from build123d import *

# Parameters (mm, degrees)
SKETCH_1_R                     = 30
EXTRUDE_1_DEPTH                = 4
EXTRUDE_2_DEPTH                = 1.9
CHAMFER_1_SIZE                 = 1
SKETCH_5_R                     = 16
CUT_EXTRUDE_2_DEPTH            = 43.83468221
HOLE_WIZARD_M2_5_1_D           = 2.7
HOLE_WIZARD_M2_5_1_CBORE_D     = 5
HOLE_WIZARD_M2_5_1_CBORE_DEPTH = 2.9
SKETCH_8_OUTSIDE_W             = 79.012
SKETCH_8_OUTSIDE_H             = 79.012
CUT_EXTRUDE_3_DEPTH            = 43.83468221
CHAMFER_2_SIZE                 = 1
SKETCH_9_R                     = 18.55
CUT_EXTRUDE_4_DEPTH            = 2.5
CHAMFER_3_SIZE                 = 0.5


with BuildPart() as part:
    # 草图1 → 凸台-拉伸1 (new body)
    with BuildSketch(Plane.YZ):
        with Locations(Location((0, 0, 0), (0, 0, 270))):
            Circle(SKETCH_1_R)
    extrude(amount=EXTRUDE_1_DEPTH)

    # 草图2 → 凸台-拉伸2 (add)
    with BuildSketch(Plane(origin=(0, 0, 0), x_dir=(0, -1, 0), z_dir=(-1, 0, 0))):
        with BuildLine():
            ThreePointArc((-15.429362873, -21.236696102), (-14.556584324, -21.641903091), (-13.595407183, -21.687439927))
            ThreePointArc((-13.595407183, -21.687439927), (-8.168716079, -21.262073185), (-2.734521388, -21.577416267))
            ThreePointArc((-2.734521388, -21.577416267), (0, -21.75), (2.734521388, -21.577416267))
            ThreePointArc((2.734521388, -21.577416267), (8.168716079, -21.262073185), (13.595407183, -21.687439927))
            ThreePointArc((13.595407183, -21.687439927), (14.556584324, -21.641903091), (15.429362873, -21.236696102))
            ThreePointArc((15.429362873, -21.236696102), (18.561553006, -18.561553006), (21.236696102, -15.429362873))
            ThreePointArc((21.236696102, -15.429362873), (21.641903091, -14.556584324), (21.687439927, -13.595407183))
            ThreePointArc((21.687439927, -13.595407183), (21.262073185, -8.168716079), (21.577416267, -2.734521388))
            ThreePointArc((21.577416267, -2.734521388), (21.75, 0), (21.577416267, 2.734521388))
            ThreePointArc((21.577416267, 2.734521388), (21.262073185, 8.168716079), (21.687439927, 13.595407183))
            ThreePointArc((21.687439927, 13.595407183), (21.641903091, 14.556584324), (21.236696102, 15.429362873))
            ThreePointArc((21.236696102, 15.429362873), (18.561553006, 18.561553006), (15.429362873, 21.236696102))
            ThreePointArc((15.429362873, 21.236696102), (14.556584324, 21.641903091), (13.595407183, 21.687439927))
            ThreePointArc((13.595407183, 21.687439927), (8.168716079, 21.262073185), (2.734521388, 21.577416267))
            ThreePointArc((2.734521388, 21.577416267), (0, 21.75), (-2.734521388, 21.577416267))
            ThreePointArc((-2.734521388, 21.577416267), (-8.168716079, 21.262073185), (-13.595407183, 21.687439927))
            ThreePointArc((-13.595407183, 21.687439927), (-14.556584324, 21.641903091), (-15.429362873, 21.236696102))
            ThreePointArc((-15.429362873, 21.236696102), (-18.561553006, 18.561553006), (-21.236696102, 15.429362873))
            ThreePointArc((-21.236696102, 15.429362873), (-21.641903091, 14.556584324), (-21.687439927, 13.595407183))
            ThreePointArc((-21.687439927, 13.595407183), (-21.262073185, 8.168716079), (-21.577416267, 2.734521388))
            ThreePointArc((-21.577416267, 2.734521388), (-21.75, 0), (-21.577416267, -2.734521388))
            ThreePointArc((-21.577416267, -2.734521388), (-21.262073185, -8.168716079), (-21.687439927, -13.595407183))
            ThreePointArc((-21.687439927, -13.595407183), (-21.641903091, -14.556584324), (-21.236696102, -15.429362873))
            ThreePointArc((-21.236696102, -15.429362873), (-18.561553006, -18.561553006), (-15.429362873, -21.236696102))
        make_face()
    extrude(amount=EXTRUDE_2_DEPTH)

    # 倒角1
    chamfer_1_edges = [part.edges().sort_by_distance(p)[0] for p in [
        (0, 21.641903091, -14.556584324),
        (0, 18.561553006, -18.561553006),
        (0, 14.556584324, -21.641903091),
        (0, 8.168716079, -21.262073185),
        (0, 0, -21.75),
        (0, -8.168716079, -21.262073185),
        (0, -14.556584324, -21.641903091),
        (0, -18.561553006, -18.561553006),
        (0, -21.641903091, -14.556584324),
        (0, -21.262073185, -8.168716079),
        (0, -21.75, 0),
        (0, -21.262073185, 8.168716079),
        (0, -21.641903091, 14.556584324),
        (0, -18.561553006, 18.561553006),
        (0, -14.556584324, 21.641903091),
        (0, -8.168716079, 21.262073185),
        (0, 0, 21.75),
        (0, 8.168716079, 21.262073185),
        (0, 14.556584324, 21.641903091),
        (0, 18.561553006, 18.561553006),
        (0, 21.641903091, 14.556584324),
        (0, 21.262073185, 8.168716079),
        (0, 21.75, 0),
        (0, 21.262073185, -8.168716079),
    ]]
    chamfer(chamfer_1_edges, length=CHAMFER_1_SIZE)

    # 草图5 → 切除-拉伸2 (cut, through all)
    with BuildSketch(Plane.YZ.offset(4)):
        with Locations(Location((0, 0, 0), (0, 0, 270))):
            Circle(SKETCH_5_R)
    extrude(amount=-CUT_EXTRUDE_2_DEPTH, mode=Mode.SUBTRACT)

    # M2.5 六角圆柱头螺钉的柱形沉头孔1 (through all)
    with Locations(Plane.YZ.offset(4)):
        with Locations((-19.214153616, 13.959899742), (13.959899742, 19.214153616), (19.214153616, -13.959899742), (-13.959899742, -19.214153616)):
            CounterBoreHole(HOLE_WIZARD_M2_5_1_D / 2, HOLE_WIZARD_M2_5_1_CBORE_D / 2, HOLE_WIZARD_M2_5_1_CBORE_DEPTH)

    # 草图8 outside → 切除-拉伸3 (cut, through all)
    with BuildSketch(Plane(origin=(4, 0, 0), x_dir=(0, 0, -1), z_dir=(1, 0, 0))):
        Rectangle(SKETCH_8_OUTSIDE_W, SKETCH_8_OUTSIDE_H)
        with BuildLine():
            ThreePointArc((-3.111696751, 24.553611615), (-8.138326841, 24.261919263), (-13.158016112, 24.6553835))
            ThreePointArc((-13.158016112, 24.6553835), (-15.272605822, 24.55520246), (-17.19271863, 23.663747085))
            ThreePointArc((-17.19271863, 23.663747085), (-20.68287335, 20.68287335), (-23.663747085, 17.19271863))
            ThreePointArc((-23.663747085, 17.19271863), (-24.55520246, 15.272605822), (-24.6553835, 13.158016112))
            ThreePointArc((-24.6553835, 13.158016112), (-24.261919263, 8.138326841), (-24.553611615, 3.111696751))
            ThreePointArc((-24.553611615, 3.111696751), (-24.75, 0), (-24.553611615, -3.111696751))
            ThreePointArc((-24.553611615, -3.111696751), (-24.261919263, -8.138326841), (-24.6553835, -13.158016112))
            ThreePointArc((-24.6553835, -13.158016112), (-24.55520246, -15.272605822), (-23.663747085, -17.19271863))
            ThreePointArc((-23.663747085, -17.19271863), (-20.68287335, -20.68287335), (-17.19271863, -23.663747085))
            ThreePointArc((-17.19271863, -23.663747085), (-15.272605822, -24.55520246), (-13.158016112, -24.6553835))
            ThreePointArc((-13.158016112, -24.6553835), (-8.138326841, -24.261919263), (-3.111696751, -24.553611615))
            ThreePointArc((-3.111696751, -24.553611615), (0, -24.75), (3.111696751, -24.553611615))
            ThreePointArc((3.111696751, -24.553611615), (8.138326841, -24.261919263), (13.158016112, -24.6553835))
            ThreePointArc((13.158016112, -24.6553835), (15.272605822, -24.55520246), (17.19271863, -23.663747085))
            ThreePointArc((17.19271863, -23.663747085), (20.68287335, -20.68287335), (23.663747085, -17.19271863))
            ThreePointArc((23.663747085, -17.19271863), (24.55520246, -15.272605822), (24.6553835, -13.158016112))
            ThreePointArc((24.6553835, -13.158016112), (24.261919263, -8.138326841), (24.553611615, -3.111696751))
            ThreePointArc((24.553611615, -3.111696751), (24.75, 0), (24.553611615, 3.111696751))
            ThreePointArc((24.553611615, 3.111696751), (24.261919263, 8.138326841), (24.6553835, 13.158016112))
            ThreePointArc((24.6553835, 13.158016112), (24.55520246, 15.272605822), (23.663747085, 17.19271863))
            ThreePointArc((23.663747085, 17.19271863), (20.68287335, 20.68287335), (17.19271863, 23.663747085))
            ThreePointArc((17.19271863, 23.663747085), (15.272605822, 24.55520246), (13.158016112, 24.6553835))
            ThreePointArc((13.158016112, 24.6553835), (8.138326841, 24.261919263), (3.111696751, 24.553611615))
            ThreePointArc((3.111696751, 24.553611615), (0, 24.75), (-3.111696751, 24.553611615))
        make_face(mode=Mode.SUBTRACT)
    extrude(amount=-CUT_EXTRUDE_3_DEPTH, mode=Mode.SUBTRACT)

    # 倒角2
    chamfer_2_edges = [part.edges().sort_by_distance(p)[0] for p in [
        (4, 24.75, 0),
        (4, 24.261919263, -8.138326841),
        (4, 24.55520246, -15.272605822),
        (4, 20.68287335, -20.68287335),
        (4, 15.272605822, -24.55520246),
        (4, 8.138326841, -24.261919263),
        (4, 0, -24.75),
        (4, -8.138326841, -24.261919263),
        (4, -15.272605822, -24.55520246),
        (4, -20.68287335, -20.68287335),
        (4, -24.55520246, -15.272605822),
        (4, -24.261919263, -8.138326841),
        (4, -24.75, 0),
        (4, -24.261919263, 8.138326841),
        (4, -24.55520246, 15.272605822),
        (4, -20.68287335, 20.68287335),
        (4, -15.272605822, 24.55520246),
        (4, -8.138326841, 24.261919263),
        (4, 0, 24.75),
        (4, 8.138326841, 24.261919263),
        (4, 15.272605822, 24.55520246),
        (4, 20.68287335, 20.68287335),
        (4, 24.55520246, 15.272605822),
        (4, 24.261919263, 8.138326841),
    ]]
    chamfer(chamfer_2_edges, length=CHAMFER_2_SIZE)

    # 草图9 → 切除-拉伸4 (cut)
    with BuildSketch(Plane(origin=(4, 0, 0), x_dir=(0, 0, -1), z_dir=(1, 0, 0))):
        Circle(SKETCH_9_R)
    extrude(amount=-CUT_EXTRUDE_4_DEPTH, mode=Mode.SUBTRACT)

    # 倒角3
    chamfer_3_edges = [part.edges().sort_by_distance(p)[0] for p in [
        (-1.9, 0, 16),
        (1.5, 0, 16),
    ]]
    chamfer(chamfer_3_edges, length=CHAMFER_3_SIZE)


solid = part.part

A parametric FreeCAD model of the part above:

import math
import FreeCAD as App
import Part
import Sketcher
Q = App.Units.Quantity


def edges_at(feature, points):
    """Names of the edges that pass closest to the given points."""
    edges = feature.Shape.Edges
    near = lambda p: min(range(len(edges)), key=lambda i: edges[i].distToShape(Part.Vertex(*p))[0])
    return sorted({f"Edge{near(p) + 1}" for p in points})


def add_polygon(sketch, points):
    """Adds a closed chain of lines whose ends are joined by coincident constraints."""
    first, n = sketch.GeometryCount, len(points)
    for a, b in zip(points, points[1:] + points[:1]):
        sketch.addGeometry(Part.LineSegment(App.Vector(*a, 0), App.Vector(*b, 0)), False)
    for i in range(n):
        sketch.addConstraint(Sketcher.Constraint("Coincident", first + i, 2, first + (i + 1) % n, 1))

doc = App.newDocument("Part")
body = doc.addObject("PartDesign::Body", "Body")

# Sketch on YZ plane
sketch1 = body.newObject("Sketcher::SketchObject", "Sketch")
sketch1.AttachmentSupport = (doc.getObject("YZ_Plane"), [""])
sketch1.MapMode = "FlatFace"
sketch1.addGeometry(Part.Circle(App.Vector(0, 0, 0), App.Vector(0, 0, 1), 30), False)
sketch1.addConstraint([
    Sketcher.Constraint("Coincident", 0, 3, -1, 1),
    Sketcher.Constraint("Diameter", 0, Q("60 mm")),
])
pad1 = body.newObject("PartDesign::Pad", "Pad")
pad1.Profile = sketch1
pad1.Length = 4

# Sketch on YZ plane
sketch2 = body.newObject("Sketcher::SketchObject", "Sketch001")
sketch2.AttachmentSupport = (doc.getObject("YZ_Plane"), [""])
sketch2.MapMode = "FlatFace"
sketch2.addGeometry([
    Part.ArcOfCircle(Part.Circle(App.Vector(13.9599, -19.214154, 0), App.Vector(0, 0, 1), 2.5), math.radians(-98.383436), math.radians(-54)),  # 0
    Part.ArcOfCircle(Part.Circle(App.Vector(7.763526, -61.260021, 0), App.Vector(0, 0, 1), 40), math.radians(81.616564), math.radians(97.222633)),  # 1
    Part.ArcOfCircle(Part.Circle(App.Vector(0, 0, 0), App.Vector(0, 0, 1), 21.75), math.radians(-97.222633), math.radians(-82.777367)),  # 2
    Part.ArcOfCircle(Part.Circle(App.Vector(-7.763526, -61.260021, 0), App.Vector(0, 0, 1), 40), math.radians(82.777367), math.radians(98.383436)),  # 3
    Part.ArcOfCircle(Part.Circle(App.Vector(-13.9599, -19.214154, 0), App.Vector(0, 0, 1), 2.5), math.radians(-126), math.radians(-81.616564)),  # 4
    Part.ArcOfCircle(Part.Circle(App.Vector(0, 0, 0), App.Vector(0, 0, 1), 26.25), math.radians(-144), math.radians(-126)),  # 5
    Part.ArcOfCircle(Part.Circle(App.Vector(-19.214154, -13.9599, 0), App.Vector(0, 0, 1), 2.5), math.radians(171.616564), math.radians(216)),  # 6
    Part.ArcOfCircle(Part.Circle(App.Vector(-61.260021, -7.763526, 0), App.Vector(0, 0, 1), 40), math.radians(-8.383436), math.radians(7.222633)),  # 7
    Part.ArcOfCircle(Part.Circle(App.Vector(0, 0, 0), App.Vector(0, 0, 1), 21.75), math.radians(172.777367), math.radians(187.222633)),  # 8
    Part.ArcOfCircle(Part.Circle(App.Vector(-61.260021, 7.763526, 0), App.Vector(0, 0, 1), 40), math.radians(-7.222633), math.radians(8.383436)),  # 9
    Part.ArcOfCircle(Part.Circle(App.Vector(-19.214154, 13.9599, 0), App.Vector(0, 0, 1), 2.5), math.radians(144), math.radians(188.383436)),  # 10
    Part.ArcOfCircle(Part.Circle(App.Vector(0, 0, 0), App.Vector(0, 0, 1), 26.25), math.radians(126), math.radians(144)),  # 11
    Part.ArcOfCircle(Part.Circle(App.Vector(-13.9599, 19.214154, 0), App.Vector(0, 0, 1), 2.5), math.radians(81.616564), math.radians(126)),  # 12
    Part.ArcOfCircle(Part.Circle(App.Vector(-7.763526, 61.260021, 0), App.Vector(0, 0, 1), 40), math.radians(-98.383436), math.radians(-82.777367)),  # 13
    Part.ArcOfCircle(Part.Circle(App.Vector(0, 0, 0), App.Vector(0, 0, 1), 21.75), math.radians(82.777367), math.radians(97.222633)),  # 14
    Part.ArcOfCircle(Part.Circle(App.Vector(7.763526, 61.260021, 0), App.Vector(0, 0, 1), 40), math.radians(-97.222633), math.radians(-81.616564)),  # 15
    Part.ArcOfCircle(Part.Circle(App.Vector(13.9599, 19.214154, 0), App.Vector(0, 0, 1), 2.5), math.radians(54), math.radians(98.383436)),  # 16
    Part.ArcOfCircle(Part.Circle(App.Vector(0, 0, 0), App.Vector(0, 0, 1), 26.25), math.radians(36), math.radians(54)),  # 17
    Part.ArcOfCircle(Part.Circle(App.Vector(19.214154, 13.9599, 0), App.Vector(0, 0, 1), 2.5), math.radians(-8.383436), math.radians(36)),  # 18
    Part.ArcOfCircle(Part.Circle(App.Vector(61.260021, 7.763526, 0), App.Vector(0, 0, 1), 40), math.radians(171.616564), math.radians(187.222633)),  # 19
    Part.ArcOfCircle(Part.Circle(App.Vector(0, 0, 0), App.Vector(0, 0, 1), 21.75), math.radians(-7.222633), math.radians(7.222633)),  # 20
    Part.ArcOfCircle(Part.Circle(App.Vector(61.260021, -7.763526, 0), App.Vector(0, 0, 1), 40), math.radians(172.777367), math.radians(188.383436)),  # 21
    Part.ArcOfCircle(Part.Circle(App.Vector(19.214154, -13.9599, 0), App.Vector(0, 0, 1), 2.5), math.radians(-36), math.radians(8.383436)),  # 22
    Part.ArcOfCircle(Part.Circle(App.Vector(0, 0, 0), App.Vector(0, 0, 1), 26.25), math.radians(-54), math.radians(-36)),  # 23
], False)
sketch2.addConstraint([
    Sketcher.Constraint("Tangent", 0, 1, 1, 1),
    Sketcher.Constraint("Tangent", 1, 2, 2, 2),
    Sketcher.Constraint("Tangent", 2, 1, 3, 1),
    Sketcher.Constraint("Tangent", 3, 2, 4, 2),
    Sketcher.Constraint("Tangent", 4, 1, 5, 2),
    Sketcher.Constraint("Tangent", 5, 1, 6, 2),
    Sketcher.Constraint("Tangent", 6, 1, 7, 1),
    Sketcher.Constraint("Tangent", 7, 2, 8, 2),
    Sketcher.Constraint("Tangent", 8, 1, 9, 1),
    Sketcher.Constraint("Tangent", 9, 2, 10, 2),
    Sketcher.Constraint("Tangent", 10, 1, 11, 2),
    Sketcher.Constraint("Tangent", 11, 1, 12, 2),
    Sketcher.Constraint("Tangent", 12, 1, 13, 1),
    Sketcher.Constraint("Tangent", 13, 2, 14, 2),
    Sketcher.Constraint("Tangent", 14, 1, 15, 1),
    Sketcher.Constraint("Tangent", 15, 2, 16, 2),
    Sketcher.Constraint("Tangent", 16, 1, 17, 2),
    Sketcher.Constraint("Tangent", 17, 1, 18, 2),
    Sketcher.Constraint("Tangent", 18, 1, 19, 1),
    Sketcher.Constraint("Tangent", 19, 2, 20, 2),
    Sketcher.Constraint("Tangent", 20, 1, 21, 1),
    Sketcher.Constraint("Tangent", 21, 2, 22, 2),
    Sketcher.Constraint("Tangent", 22, 1, 23, 2),
    Sketcher.Constraint("Tangent", 23, 1, 0, 2),
    Sketcher.Constraint("Coincident", 2, 3, -1, 1),
    Sketcher.Constraint("Coincident", 5, 3, -1, 1),
    Sketcher.Constraint("Coincident", 8, 3, -1, 1),
    Sketcher.Constraint("Coincident", 11, 3, -1, 1),
    Sketcher.Constraint("Coincident", 14, 3, -1, 1),
    Sketcher.Constraint("Coincident", 17, 3, -1, 1),
    Sketcher.Constraint("Coincident", 20, 3, -1, 1),
    Sketcher.Constraint("Coincident", 23, 3, -1, 1),
    Sketcher.Constraint("Equal", 1, 3),
    Sketcher.Constraint("Equal", 0, 4),
    Sketcher.Constraint("Equal", 4, 6),
    Sketcher.Constraint("Equal", 3, 7),
    Sketcher.Constraint("Equal", 2, 8),
    Sketcher.Constraint("Equal", 7, 9),
    Sketcher.Constraint("Equal", 6, 10),
    Sketcher.Constraint("Equal", 5, 11),
    Sketcher.Constraint("Equal", 10, 12),
    Sketcher.Constraint("Equal", 9, 13),
    Sketcher.Constraint("Equal", 8, 14),
    Sketcher.Constraint("Equal", 13, 15),
    Sketcher.Constraint("Equal", 12, 16),
    Sketcher.Constraint("Equal", 11, 17),
    Sketcher.Constraint("Equal", 16, 18),
    Sketcher.Constraint("Equal", 15, 19),
    Sketcher.Constraint("Equal", 14, 20),
    Sketcher.Constraint("Equal", 19, 21),
    Sketcher.Constraint("Equal", 18, 22),
    Sketcher.Constraint("Equal", 17, 23),
    Sketcher.Constraint("Horizontal", 1, 3, 3, 3),
    Sketcher.Constraint("Horizontal", 13, 3, 15, 3),
    Sketcher.Constraint("Horizontal", 10, 3, 18, 3),
    Sketcher.Constraint("Horizontal", 7, 3, 21, 3),
    Sketcher.Constraint("Vertical", 7, 3, 9, 3),
    Sketcher.Constraint("Vertical", 4, 3, 12, 3),
    Sketcher.Constraint("Radius", 1, Q("40 mm")),
    Sketcher.Constraint("Radius", 0, Q("2.5 mm")),
    Sketcher.Constraint("Radius", 2, Q("21.75 mm")),
    Sketcher.Constraint("Radius", 5, Q("26.25 mm")),
    Sketcher.Constraint("DistanceX", -1, 1, 0, 3, Q("13.9599 mm")),
    Sketcher.Constraint("DistanceY", 6, 3, -1, 1, Q("13.9599 mm")),
])
pad2 = body.newObject("PartDesign::Pad", "Pad001")
pad2.Profile = sketch2
pad2.Length = 1.9
pad2.Reversed = True
doc.recompute()

chamfer = body.newObject("PartDesign::Chamfer", "Chamfer")
chamfer.Base = (pad2, edges_at(pad2, [
    (0, 21.642, -14.557),
    (0, 18.562, -18.562),
    (0, 14.557, -21.642),
    (0, 8.169, -21.262),
    (0, 0, -21.75),
    (0, -8.169, -21.262),
    (0, -14.557, -21.642),
    (0, -18.562, -18.562),
    (0, -21.642, -14.557),
    (0, -21.262, -8.169),
    (0, -21.75, 0),
    (0, -21.262, 8.169),
    (0, -21.642, 14.557),
    (0, -18.562, 18.562),
    (0, -14.557, 21.642),
    (0, -8.169, 21.262),
    (0, 0, 21.75),
    (0, 8.169, 21.262),
    (0, 14.557, 21.642),
    (0, 18.562, 18.562),
    (0, 21.642, 14.557),
    (0, 21.262, 8.169),
    (0, 21.75, 0),
    (0, 21.262, -8.169),
]))
chamfer.Size = 1

# Sketch on YZ plane
sketch3 = body.newObject("Sketcher::SketchObject", "Sketch002")
sketch3.AttachmentSupport = (doc.getObject("YZ_Plane"), [""])
sketch3.MapMode = "FlatFace"
sketch3.AttachmentOffset = App.Placement(App.Vector(0, 0, 4), App.Rotation())
sketch3.addGeometry(Part.Circle(App.Vector(0, 0, 0), App.Vector(0, 0, 1), 16), False)
sketch3.addConstraint([
    Sketcher.Constraint("Coincident", 0, 3, -1, 1),
    Sketcher.Constraint("Diameter", 0, Q("32 mm")),
])
pocket1 = body.newObject("PartDesign::Pocket", "Pocket")
pocket1.Profile = sketch3
pocket1.Type = "ThroughAll"

# Sketch on YZ plane
sketch4 = body.newObject("Sketcher::SketchObject", "Sketch003")
sketch4.AttachmentSupport = (doc.getObject("YZ_Plane"), [""])
sketch4.MapMode = "FlatFace"
sketch4.AttachmentOffset = App.Placement(App.Vector(0, 0, 4), App.Rotation())
sketch4.addGeometry([
    Part.Circle(App.Vector(-19.214154, 13.9599, 0), App.Vector(0, 0, 1), 1.35),
    Part.Circle(App.Vector(13.9599, 19.214154, 0), App.Vector(0, 0, 1), 1.35),
    Part.Circle(App.Vector(19.214154, -13.9599, 0), App.Vector(0, 0, 1), 1.35),
    Part.Circle(App.Vector(-13.9599, -19.214154, 0), App.Vector(0, 0, 1), 1.35),
], False)
sketch4.addConstraint([
    Sketcher.Constraint("Equal", 0, 1),
    Sketcher.Constraint("Equal", 1, 2),
    Sketcher.Constraint("Equal", 2, 3),
    Sketcher.Constraint("Symmetric", 0, 3, 2, 3, -1, 1),
    Sketcher.Constraint("Symmetric", 1, 3, 3, 3, -1, 1),
    Sketcher.Constraint("Diameter", 0, Q("2.7 mm")),
    Sketcher.Constraint("DistanceY", -1, 1, 0, 3, Q("13.9599 mm")),
    Sketcher.Constraint("DistanceX", -1, 1, 1, 3, Q("13.9599 mm")),
    Sketcher.Constraint("DistanceX", 0, 3, -1, 1, Q("19.214154 mm")),
    Sketcher.Constraint("DistanceY", -1, 1, 1, 3, Q("19.214154 mm")),
])
doc.recompute()
hole = body.newObject("PartDesign::Hole", "Hole")
hole.Profile = sketch4
hole.ThreadType = "None"
hole.Diameter = 2.7
hole.DepthType = "ThroughAll"
hole.HoleCutType = "Counterbore"
hole.HoleCutDiameter = 5
hole.HoleCutDepth = 2.9

# Sketch on YZ plane
sketch5 = body.newObject("Sketcher::SketchObject", "Sketch004")
sketch5.AttachmentSupport = (doc.getObject("YZ_Plane"), [""])
sketch5.MapMode = "FlatFace"
sketch5.AttachmentOffset = App.Placement(App.Vector(0, 0, 4), App.Rotation())
add_polygon(sketch5, [(39.506, 39.506), (-39.506, 39.506), (-39.506, -39.506), (39.506, -39.506)])  # lines 0-3
sketch5.addGeometry(Part.ArcOfCircle(Part.Circle(App.Vector(61.260021, 7.763526, 0), App.Vector(0, 0, 1), 37), math.radians(171.616564), math.radians(187.222633)), False)  # 4
sketch5.addGeometry(Part.ArcOfCircle(Part.Circle(App.Vector(0, 0, 0), App.Vector(0, 0, 1), 24.75), math.radians(-7.222633), math.radians(7.222633)), False)  # 5
sketch5.addGeometry(Part.ArcOfCircle(Part.Circle(App.Vector(61.260021, -7.763526, 0), App.Vector(0, 0, 1), 37), math.radians(172.777367), math.radians(188.383436)), False)  # 6
sketch5.addGeometry(Part.ArcOfCircle(Part.Circle(App.Vector(19.214154, -13.9599, 0), App.Vector(0, 0, 1), 5.5), math.radians(-36), math.radians(8.383436)), False)  # 7
sketch5.addGeometry(Part.ArcOfCircle(Part.Circle(App.Vector(0, 0, 0), App.Vector(0, 0, 1), 29.25), math.radians(-54), math.radians(-36)), False)  # 8
sketch5.addGeometry(Part.ArcOfCircle(Part.Circle(App.Vector(13.9599, -19.214154, 0), App.Vector(0, 0, 1), 5.5), math.radians(-98.383436), math.radians(-54)), False)  # 9
sketch5.addGeometry(Part.ArcOfCircle(Part.Circle(App.Vector(7.763526, -61.260021, 0), App.Vector(0, 0, 1), 37), math.radians(81.616564), math.radians(97.222633)), False)  # 10
sketch5.addGeometry(Part.ArcOfCircle(Part.Circle(App.Vector(0, 0, 0), App.Vector(0, 0, 1), 24.75), math.radians(-97.222633), math.radians(-82.777367)), False)  # 11
sketch5.addGeometry(Part.ArcOfCircle(Part.Circle(App.Vector(-7.763526, -61.260021, 0), App.Vector(0, 0, 1), 37), math.radians(82.777367), math.radians(98.383436)), False)  # 12
sketch5.addGeometry(Part.ArcOfCircle(Part.Circle(App.Vector(-13.9599, -19.214154, 0), App.Vector(0, 0, 1), 5.5), math.radians(-126), math.radians(-81.616564)), False)  # 13
sketch5.addGeometry(Part.ArcOfCircle(Part.Circle(App.Vector(0, 0, 0), App.Vector(0, 0, 1), 29.25), math.radians(-144), math.radians(-126)), False)  # 14
sketch5.addGeometry(Part.ArcOfCircle(Part.Circle(App.Vector(-19.214154, -13.9599, 0), App.Vector(0, 0, 1), 5.5), math.radians(171.616564), math.radians(216)), False)  # 15
sketch5.addGeometry(Part.ArcOfCircle(Part.Circle(App.Vector(-61.260021, -7.763526, 0), App.Vector(0, 0, 1), 37), math.radians(-8.383436), math.radians(7.222633)), False)  # 16
sketch5.addGeometry(Part.ArcOfCircle(Part.Circle(App.Vector(0, 0, 0), App.Vector(0, 0, 1), 24.75), math.radians(172.777367), math.radians(187.222633)), False)  # 17
sketch5.addGeometry(Part.ArcOfCircle(Part.Circle(App.Vector(-61.260021, 7.763526, 0), App.Vector(0, 0, 1), 37), math.radians(-7.222633), math.radians(8.383436)), False)  # 18
sketch5.addGeometry(Part.ArcOfCircle(Part.Circle(App.Vector(-19.214154, 13.9599, 0), App.Vector(0, 0, 1), 5.5), math.radians(144), math.radians(188.383436)), False)  # 19
sketch5.addGeometry(Part.ArcOfCircle(Part.Circle(App.Vector(0, 0, 0), App.Vector(0, 0, 1), 29.25), math.radians(126), math.radians(144)), False)  # 20
sketch5.addGeometry(Part.ArcOfCircle(Part.Circle(App.Vector(-13.9599, 19.214154, 0), App.Vector(0, 0, 1), 5.5), math.radians(81.616564), math.radians(126)), False)  # 21
sketch5.addGeometry(Part.ArcOfCircle(Part.Circle(App.Vector(-7.763526, 61.260021, 0), App.Vector(0, 0, 1), 37), math.radians(-98.383436), math.radians(-82.777367)), False)  # 22
sketch5.addGeometry(Part.ArcOfCircle(Part.Circle(App.Vector(0, 0, 0), App.Vector(0, 0, 1), 24.75), math.radians(82.777367), math.radians(97.222633)), False)  # 23
sketch5.addGeometry(Part.ArcOfCircle(Part.Circle(App.Vector(7.763526, 61.260021, 0), App.Vector(0, 0, 1), 37), math.radians(-97.222633), math.radians(-81.616564)), False)  # 24
sketch5.addGeometry(Part.ArcOfCircle(Part.Circle(App.Vector(13.9599, 19.214154, 0), App.Vector(0, 0, 1), 5.5), math.radians(54), math.radians(98.383436)), False)  # 25
sketch5.addGeometry(Part.ArcOfCircle(Part.Circle(App.Vector(0, 0, 0), App.Vector(0, 0, 1), 29.25), math.radians(36), math.radians(54)), False)  # 26
sketch5.addGeometry(Part.ArcOfCircle(Part.Circle(App.Vector(19.214154, 13.9599, 0), App.Vector(0, 0, 1), 5.5), math.radians(-8.383436), math.radians(36)), False)  # 27
sketch5.addConstraint([
    Sketcher.Constraint("Tangent", 4, 2, 5, 2),
    Sketcher.Constraint("Tangent", 5, 1, 6, 1),
    Sketcher.Constraint("Tangent", 6, 2, 7, 2),
    Sketcher.Constraint("Tangent", 7, 1, 8, 2),
    Sketcher.Constraint("Tangent", 8, 1, 9, 2),
    Sketcher.Constraint("Tangent", 9, 1, 10, 1),
    Sketcher.Constraint("Tangent", 10, 2, 11, 2),
    Sketcher.Constraint("Tangent", 11, 1, 12, 1),
    Sketcher.Constraint("Tangent", 12, 2, 13, 2),
    Sketcher.Constraint("Tangent", 13, 1, 14, 2),
    Sketcher.Constraint("Tangent", 14, 1, 15, 2),
    Sketcher.Constraint("Tangent", 15, 1, 16, 1),
    Sketcher.Constraint("Tangent", 16, 2, 17, 2),
    Sketcher.Constraint("Tangent", 17, 1, 18, 1),
    Sketcher.Constraint("Tangent", 18, 2, 19, 2),
    Sketcher.Constraint("Tangent", 19, 1, 20, 2),
    Sketcher.Constraint("Tangent", 20, 1, 21, 2),
    Sketcher.Constraint("Tangent", 21, 1, 22, 1),
    Sketcher.Constraint("Tangent", 22, 2, 23, 2),
    Sketcher.Constraint("Tangent", 23, 1, 24, 1),
    Sketcher.Constraint("Tangent", 24, 2, 25, 2),
    Sketcher.Constraint("Tangent", 25, 1, 26, 2),
    Sketcher.Constraint("Tangent", 26, 1, 27, 2),
    Sketcher.Constraint("Tangent", 27, 1, 4, 1),
    Sketcher.Constraint("Horizontal", 0),
    Sketcher.Constraint("Vertical", 1),
    Sketcher.Constraint("Horizontal", 2),
    Sketcher.Constraint("Vertical", 3),
    Sketcher.Constraint("Coincident", 5, 3, -1, 1),
    Sketcher.Constraint("Coincident", 8, 3, -1, 1),
    Sketcher.Constraint("Coincident", 11, 3, -1, 1),
    Sketcher.Constraint("Coincident", 14, 3, -1, 1),
    Sketcher.Constraint("Coincident", 17, 3, -1, 1),
    Sketcher.Constraint("Coincident", 20, 3, -1, 1),
    Sketcher.Constraint("Coincident", 23, 3, -1, 1),
    Sketcher.Constraint("Coincident", 26, 3, -1, 1),
    Sketcher.Constraint("Equal", 4, 6),
    Sketcher.Constraint("Equal", 7, 9),
    Sketcher.Constraint("Equal", 6, 10),
    Sketcher.Constraint("Equal", 5, 11),
    Sketcher.Constraint("Equal", 10, 12),
    Sketcher.Constraint("Equal", 9, 13),
    Sketcher.Constraint("Equal", 8, 14),
    Sketcher.Constraint("Equal", 13, 15),
    Sketcher.Constraint("Equal", 12, 16),
    Sketcher.Constraint("Equal", 11, 17),
    Sketcher.Constraint("Equal", 16, 18),
    Sketcher.Constraint("Equal", 15, 19),
    Sketcher.Constraint("Equal", 14, 20),
    Sketcher.Constraint("Equal", 19, 21),
    Sketcher.Constraint("Equal", 18, 22),
    Sketcher.Constraint("Equal", 17, 23),
    Sketcher.Constraint("Equal", 22, 24),
    Sketcher.Constraint("Equal", 21, 25),
    Sketcher.Constraint("Equal", 20, 26),
    Sketcher.Constraint("Equal", 25, 27),
    Sketcher.Constraint("Symmetric", 0, 2, 2, 2, -1, 1),
    Sketcher.Constraint("Horizontal", 10, 3, 12, 3),
    Sketcher.Constraint("Horizontal", 7, 3, 15, 3),
    Sketcher.Constraint("Horizontal", 4, 3, 18, 3),
    Sketcher.Constraint("Horizontal", 22, 3, 24, 3),
    Sketcher.Constraint("Vertical", 4, 3, 6, 3),
    Sketcher.Constraint("Vertical", 13, 3, 21, 3),
    Sketcher.Constraint("Equal", 2, 1),
    Sketcher.Constraint("Radius", 4, Q("37 mm")),
    Sketcher.Constraint("Radius", 7, Q("5.5 mm")),
    Sketcher.Constraint("Radius", 5, Q("24.75 mm")),
    Sketcher.Constraint("Radius", 8, Q("29.25 mm")),
    Sketcher.Constraint("DistanceX", 0, 2, 0, 1, Q("79.012 mm")),
    Sketcher.Constraint("DistanceY", 7, 3, -1, 1, Q("13.9599 mm")),
    Sketcher.Constraint("DistanceX", -1, 1, 9, 3, Q("13.9599 mm")),
])
pocket2 = body.newObject("PartDesign::Pocket", "Pocket001")
pocket2.Profile = sketch5
pocket2.Type = "ThroughAll"
doc.recompute()

chamfer2 = body.newObject("PartDesign::Chamfer", "Chamfer001")
chamfer2.Base = (pocket2, edges_at(pocket2, [
    (4, 24.75, 0),
    (4, 24.262, -8.138),
    (4, 24.555, -15.273),
    (4, 20.683, -20.683),
    (4, 15.273, -24.555),
    (4, 8.138, -24.262),
    (4, 0, -24.75),
    (4, -8.138, -24.262),
    (4, -15.273, -24.555),
    (4, -20.683, -20.683),
    (4, -24.555, -15.273),
    (4, -24.262, -8.138),
    (4, -24.75, 0),
    (4, -24.262, 8.138),
    (4, -24.555, 15.273),
    (4, -20.683, 20.683),
    (4, -15.273, 24.555),
    (4, -8.138, 24.262),
    (4, 0, 24.75),
    (4, 8.138, 24.262),
    (4, 15.273, 24.555),
    (4, 20.683, 20.683),
    (4, 24.555, 15.273),
    (4, 24.262, 8.138),
]))
chamfer2.Size = 1

# Sketch on YZ plane
sketch6 = body.newObject("Sketcher::SketchObject", "Sketch005")
sketch6.AttachmentSupport = (doc.getObject("YZ_Plane"), [""])
sketch6.MapMode = "FlatFace"
sketch6.AttachmentOffset = App.Placement(App.Vector(0, 0, 4), App.Rotation())
sketch6.addGeometry(Part.Circle(App.Vector(0, 0, 0), App.Vector(0, 0, 1), 18.55), False)
sketch6.addConstraint([
    Sketcher.Constraint("Coincident", 0, 3, -1, 1),
    Sketcher.Constraint("Diameter", 0, Q("37.1 mm")),
])
pocket3 = body.newObject("PartDesign::Pocket", "Pocket002")
pocket3.Profile = sketch6
pocket3.Length = 2.5
doc.recompute()

chamfer3 = body.newObject("PartDesign::Chamfer", "Chamfer002")
chamfer3.Base = (pocket3, edges_at(pocket3, [(-1.9, 0, 16), (1.5, 0, 16)]))
chamfer3.Size = 0.5

doc.recompute()
